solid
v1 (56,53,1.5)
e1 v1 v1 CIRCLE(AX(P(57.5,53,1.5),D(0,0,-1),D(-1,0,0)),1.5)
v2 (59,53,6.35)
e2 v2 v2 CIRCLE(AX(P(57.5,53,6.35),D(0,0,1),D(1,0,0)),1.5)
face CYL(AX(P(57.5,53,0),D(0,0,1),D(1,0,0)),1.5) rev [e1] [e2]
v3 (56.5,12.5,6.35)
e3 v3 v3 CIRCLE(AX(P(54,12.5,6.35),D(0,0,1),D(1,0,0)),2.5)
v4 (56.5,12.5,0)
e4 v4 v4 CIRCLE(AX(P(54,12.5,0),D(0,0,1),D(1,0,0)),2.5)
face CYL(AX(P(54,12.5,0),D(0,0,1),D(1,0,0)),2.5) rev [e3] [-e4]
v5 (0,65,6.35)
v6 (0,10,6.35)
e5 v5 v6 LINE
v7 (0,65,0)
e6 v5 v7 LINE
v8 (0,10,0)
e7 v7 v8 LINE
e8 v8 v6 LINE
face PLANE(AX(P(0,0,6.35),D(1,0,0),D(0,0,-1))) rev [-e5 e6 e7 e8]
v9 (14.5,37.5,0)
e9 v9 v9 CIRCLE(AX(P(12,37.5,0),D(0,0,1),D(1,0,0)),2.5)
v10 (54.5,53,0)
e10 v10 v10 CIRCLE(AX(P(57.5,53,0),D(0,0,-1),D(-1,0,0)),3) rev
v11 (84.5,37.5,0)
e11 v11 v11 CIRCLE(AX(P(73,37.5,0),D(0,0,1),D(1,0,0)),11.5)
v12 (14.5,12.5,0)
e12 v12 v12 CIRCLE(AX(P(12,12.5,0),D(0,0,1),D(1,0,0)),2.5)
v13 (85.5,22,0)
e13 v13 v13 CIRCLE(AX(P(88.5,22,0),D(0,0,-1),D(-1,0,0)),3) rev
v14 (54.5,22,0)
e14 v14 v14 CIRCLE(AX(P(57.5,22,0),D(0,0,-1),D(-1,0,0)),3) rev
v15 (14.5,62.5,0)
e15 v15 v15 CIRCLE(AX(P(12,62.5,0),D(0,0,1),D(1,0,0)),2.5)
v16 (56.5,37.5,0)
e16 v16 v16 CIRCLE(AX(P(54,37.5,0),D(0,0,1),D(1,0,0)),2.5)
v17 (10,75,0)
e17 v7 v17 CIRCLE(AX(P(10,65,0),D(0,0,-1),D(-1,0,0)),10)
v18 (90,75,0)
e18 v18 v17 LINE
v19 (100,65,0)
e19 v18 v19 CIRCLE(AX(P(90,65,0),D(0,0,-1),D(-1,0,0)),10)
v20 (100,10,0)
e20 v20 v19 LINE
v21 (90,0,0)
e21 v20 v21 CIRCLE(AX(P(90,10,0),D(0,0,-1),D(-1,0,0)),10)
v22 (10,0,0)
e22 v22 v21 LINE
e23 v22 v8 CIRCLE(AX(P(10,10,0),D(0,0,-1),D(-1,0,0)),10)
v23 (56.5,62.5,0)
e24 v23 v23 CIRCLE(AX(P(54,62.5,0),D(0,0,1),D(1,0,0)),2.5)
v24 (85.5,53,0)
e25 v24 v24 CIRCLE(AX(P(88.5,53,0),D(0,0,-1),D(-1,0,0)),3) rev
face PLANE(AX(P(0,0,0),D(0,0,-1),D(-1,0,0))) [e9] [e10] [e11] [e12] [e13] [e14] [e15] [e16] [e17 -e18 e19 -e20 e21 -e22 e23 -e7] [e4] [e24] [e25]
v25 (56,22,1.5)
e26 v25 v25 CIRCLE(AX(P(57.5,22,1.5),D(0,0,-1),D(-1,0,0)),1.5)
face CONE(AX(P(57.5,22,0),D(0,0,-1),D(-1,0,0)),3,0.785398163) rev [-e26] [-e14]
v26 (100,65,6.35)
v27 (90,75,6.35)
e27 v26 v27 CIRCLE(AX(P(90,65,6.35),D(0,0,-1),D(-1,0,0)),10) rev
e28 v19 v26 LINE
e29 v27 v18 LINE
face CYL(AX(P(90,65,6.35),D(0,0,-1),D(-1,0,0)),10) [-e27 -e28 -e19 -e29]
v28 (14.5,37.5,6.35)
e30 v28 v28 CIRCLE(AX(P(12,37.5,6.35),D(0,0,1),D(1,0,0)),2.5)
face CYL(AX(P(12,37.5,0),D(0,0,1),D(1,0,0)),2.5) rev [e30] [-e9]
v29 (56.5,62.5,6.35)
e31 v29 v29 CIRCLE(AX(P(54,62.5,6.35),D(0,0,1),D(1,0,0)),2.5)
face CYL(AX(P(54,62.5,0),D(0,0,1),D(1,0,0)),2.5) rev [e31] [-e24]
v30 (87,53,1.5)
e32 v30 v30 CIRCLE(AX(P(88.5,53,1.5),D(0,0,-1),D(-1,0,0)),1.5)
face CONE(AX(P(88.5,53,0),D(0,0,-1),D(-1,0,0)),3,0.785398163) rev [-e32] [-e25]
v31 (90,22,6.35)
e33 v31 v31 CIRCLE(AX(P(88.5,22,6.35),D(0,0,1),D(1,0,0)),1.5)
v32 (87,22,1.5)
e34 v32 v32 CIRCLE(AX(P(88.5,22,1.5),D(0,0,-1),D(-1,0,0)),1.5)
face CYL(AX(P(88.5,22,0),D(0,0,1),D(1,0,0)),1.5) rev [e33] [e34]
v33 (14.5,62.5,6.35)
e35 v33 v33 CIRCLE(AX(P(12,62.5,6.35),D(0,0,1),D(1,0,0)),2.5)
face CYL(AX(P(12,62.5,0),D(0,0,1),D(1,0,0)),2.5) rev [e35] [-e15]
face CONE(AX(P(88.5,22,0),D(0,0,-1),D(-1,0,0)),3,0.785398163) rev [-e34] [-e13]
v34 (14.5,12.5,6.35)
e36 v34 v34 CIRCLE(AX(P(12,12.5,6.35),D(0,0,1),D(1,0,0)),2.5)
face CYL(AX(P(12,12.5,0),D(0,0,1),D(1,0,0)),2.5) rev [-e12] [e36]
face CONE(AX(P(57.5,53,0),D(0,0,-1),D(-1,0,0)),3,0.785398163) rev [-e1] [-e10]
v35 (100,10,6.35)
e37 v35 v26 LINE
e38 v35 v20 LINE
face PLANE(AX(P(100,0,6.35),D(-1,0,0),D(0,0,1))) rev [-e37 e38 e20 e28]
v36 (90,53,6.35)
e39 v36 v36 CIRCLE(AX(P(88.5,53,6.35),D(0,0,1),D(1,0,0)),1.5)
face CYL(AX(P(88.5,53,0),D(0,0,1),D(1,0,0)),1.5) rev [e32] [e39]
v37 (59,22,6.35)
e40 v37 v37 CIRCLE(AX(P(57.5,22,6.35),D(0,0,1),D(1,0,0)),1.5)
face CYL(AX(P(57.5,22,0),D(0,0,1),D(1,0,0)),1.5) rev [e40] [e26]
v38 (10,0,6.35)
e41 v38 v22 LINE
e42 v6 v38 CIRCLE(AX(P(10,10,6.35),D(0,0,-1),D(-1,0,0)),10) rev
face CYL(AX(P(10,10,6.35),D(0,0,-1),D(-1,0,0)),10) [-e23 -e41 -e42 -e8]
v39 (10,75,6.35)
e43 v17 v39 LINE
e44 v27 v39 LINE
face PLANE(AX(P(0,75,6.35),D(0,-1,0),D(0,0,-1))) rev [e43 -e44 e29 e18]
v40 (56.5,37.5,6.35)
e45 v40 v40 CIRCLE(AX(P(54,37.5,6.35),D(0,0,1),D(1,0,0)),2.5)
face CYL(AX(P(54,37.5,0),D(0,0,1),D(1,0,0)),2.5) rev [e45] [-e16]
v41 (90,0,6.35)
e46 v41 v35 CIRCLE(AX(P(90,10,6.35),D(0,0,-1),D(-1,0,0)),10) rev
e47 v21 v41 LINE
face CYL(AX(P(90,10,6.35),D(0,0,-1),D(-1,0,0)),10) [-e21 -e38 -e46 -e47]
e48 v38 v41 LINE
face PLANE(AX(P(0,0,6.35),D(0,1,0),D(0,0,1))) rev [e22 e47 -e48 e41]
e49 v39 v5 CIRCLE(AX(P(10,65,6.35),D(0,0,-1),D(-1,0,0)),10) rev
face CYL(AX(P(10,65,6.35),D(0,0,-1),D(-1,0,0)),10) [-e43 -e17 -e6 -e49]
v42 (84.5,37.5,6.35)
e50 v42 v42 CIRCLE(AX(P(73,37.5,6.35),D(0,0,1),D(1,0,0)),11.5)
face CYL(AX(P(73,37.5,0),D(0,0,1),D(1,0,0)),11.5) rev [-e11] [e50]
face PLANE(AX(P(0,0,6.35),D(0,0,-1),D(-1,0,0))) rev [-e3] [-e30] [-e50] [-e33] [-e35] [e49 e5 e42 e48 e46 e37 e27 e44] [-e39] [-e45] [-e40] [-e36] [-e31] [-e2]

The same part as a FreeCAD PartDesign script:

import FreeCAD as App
import Part
import Sketcher
from FreeCAD import Vector
Q = App.Units.Quantity


def edges_at(feature, points):
    """Names of the edges that pass closest to the given points."""
    edges = feature.Shape.Edges
    near = lambda p: min(range(len(edges)), key=lambda i: edges[i].distToShape(Part.Vertex(*p))[0])
    return sorted({f"Edge{near(p) + 1}" for p in points})


def add_polygon(sketch, points):
    """Adds a closed chain of lines whose ends are joined by coincident constraints."""
    first, n = sketch.GeometryCount, len(points)
    for a, b in zip(points, points[1:] + points[:1]):
        sketch.addGeometry(Part.LineSegment(App.Vector(*a, 0), App.Vector(*b, 0)), False)
    for i in range(n):
        sketch.addConstraint(Sketcher.Constraint("Coincident", first + i, 2, first + (i + 1) % n, 1))

doc = App.newDocument("Part")
params = doc.addObject("Spreadsheet::Sheet", "Params")
for row, (alias, value) in enumerate([
    ("sketch1_width", "100 mm"),
    ("sketch1_height", "75 mm"),
    ("pad1_length", "6.35 mm"),
    ("sketch2_diameter", "5 mm"),
    ("sketch3_diameter", "3 mm"),
    ("sketch3_diameter2", "23 mm"),
    ("chamfer_size", "1.5 mm"),
    ("fillet_radius", "10 mm"),
], start=1):
    params.set(f"A{row}", alias)
    params.set(f"B{row}", "=" + value)
    params.setAlias(f"B{row}", alias)

body = doc.addObject("PartDesign::Body", "Body")

# Sketch on XY plane
sketch1 = body.newObject("Sketcher::SketchObject", "Sketch")
sketch1.AttachmentSupport = (doc.getObject("XY_Plane"), [""])
sketch1.MapMode = "FlatFace"
add_polygon(sketch1, [(0, 75), (0, 0), (100, 0), (100, 75)])  # lines 0-3
sketch1.addConstraint([
    Sketcher.Constraint("Vertical", 0),
    Sketcher.Constraint("Horizontal", 1),
    Sketcher.Constraint("Vertical", 2),
    Sketcher.Constraint("Horizontal", 3),
    Sketcher.Constraint("Coincident", 0, 2, -1, 1),
    Sketcher.Constraint("DistanceX", 1, 1, 1, 2, Q("100 mm")),
    Sketcher.Constraint("DistanceY", 0, 2, 0, 1, Q("75 mm")),
])
sketch1.setExpression("Constraints[9]", "Params.sketch1_width")
sketch1.setExpression("Constraints[10]", "Params.sketch1_height")
pad1 = body.newObject("PartDesign::Pad", "Pad")
pad1.Profile = sketch1
pad1.setExpression("Length", "Params.pad1_length")

# Sketch on XY plane
sketch2 = body.newObject("Sketcher::SketchObject", "Sketch001")
sketch2.AttachmentSupport = (doc.getObject("XY_Plane"), [""])
sketch2.MapMode = "FlatFace"
sketch2.AttachmentOffset = App.Placement(Vector(0, 0, 6.35), App.Rotation())
sketch2.addGeometry([
    Part.Circle(Vector(12, 62.5, 0), Vector(0, 0, 1), 2.5),  # 0
    Part.Circle(Vector(12, 12.5, 0), Vector(0, 0, 1), 2.5),  # 1
    Part.Circle(Vector(54, 37.5, 0), Vector(0, 0, 1), 2.5),  # 2
    Part.Circle(Vector(54, 62.5, 0), Vector(0, 0, 1), 2.5),  # 3
    Part.Circle(Vector(12, 37.5, 0), Vector(0, 0, 1), 2.5),  # 4
    Part.Circle(Vector(54, 12.5, 0), Vector(0, 0, 1), 2.5),  # 5
], False)
sketch2.addConstraint([
    Sketcher.Constraint("Equal", 0, 1),
    Sketcher.Constraint("Equal", 1, 2),
    Sketcher.Constraint("Equal", 2, 3),
    Sketcher.Constraint("Equal", 3, 4),
    Sketcher.Constraint("Equal", 4, 5),
    Sketcher.Constraint("Horizontal", 0, 3, 3, 3),
    Sketcher.Constraint("Horizontal", 2, 3, 4, 3),
    Sketcher.Constraint("Horizontal", 1, 3, 5, 3),
    Sketcher.Constraint("Vertical", 0, 3, 1, 3),
    Sketcher.Constraint("Vertical", 2, 3, 3, 3),
    Sketcher.Constraint("Vertical", 1, 3, 4, 3),
    Sketcher.Constraint("Vertical", 3, 3, 5, 3),
    Sketcher.Constraint("Diameter", 0, Q("5 mm")),
    Sketcher.Constraint("DistanceX", -1, 1, 0, 3, Q("12 mm")),
    Sketcher.Constraint("DistanceX", -1, 1, 2, 3, Q("54 mm")),
    Sketcher.Constraint("DistanceY", 1, 3, 0, 3, Q("50 mm")),
    Sketcher.Constraint("DistanceY", 2, 3, 0, 3, Q("25 mm")),
    Sketcher.Constraint("DistanceY", -1, 1, 0, 3, Q("62.5 mm")),
])
sketch2.setExpression("Constraints[12]", "Params.sketch2_diameter")
pocket1 = body.newObject("PartDesign::Pocket", "Pocket")
pocket1.Profile = sketch2
pocket1.Type = "ThroughAll"

# Sketch on XY plane
sketch3 = body.newObject("Sketcher::SketchObject", "Sketch002")
sketch3.AttachmentSupport = (doc.getObject("XY_Plane"), [""])
sketch3.MapMode = "FlatFace"
sketch3.AttachmentOffset = App.Placement(Vector(0, 0, 6.35), App.Rotation())
sketch3.addGeometry([
    Part.Circle(Vector(57.5, 53, 0), Vector(0, 0, 1), 1.5),  # 0
    Part.Circle(Vector(88.5, 53, 0), Vector(0, 0, 1), 1.5),  # 1
    Part.Circle(Vector(88.5, 22, 0), Vector(0, 0, 1), 1.5),  # 2
    Part.Circle(Vector(57.5, 22, 0), Vector(0, 0, 1), 1.5),  # 3
    Part.Circle(Vector(73, 37.5, 0), Vector(0, 0, 1), 11.5),  # 4
], False)
sketch3.addConstraint([
    Sketcher.Constraint("Equal", 0, 1),
    Sketcher.Constraint("Equal", 1, 2),
    Sketcher.Constraint("Equal", 2, 3),
    Sketcher.Constraint("Horizontal", 0, 3, 1, 3),
    Sketcher.Constraint("Horizontal", 2, 3, 3, 3),
    Sketcher.Constraint("Vertical", 1, 3, 2, 3),
    Sketcher.Constraint("Vertical", 0, 3, 3, 3),
    Sketcher.Constraint("Diameter", 0, Q("3 mm")),
    Sketcher.Constraint("Diameter", 4, Q("23 mm")),
    Sketcher.Constraint("DistanceY", -1, 1, 0, 3, Q("53 mm")),
    Sketcher.Constraint("DistanceY", -1, 1, 2, 3, Q("22 mm")),
    Sketcher.Constraint("DistanceX", -1, 1, 4, 3, Q("73 mm")),
    Sketcher.Constraint("DistanceX", 0, 3, 1, 3, Q("31 mm")),
    Sketcher.Constraint("DistanceX", -1, 1, 0, 3, Q("57.5 mm")),
    Sketcher.Constraint("DistanceY", -1, 1, 4, 3, Q("37.5 mm")),
])
sketch3.setExpression("Constraints[7]", "Params.sketch3_diameter")
sketch3.setExpression("Constraints[8]", "Params.sketch3_diameter2")
pocket2 = body.newObject("PartDesign::Pocket", "Pocket001")
pocket2.Profile = sketch3
pocket2.Type = "ThroughAll"
doc.recompute()

chamfer = body.newObject("PartDesign::Chamfer", "Chamfer")
chamfer.Base = (pocket2, edges_at(pocket2, [
    (56, 53, 0),
    (87, 22, 0),
    (56, 22, 0),
    (87, 53, 0),
]))
chamfer.setExpression("Size", "Params.chamfer_size")
doc.recompute()

fillet = body.newObject("PartDesign::Fillet", "Fillet")
fillet.Base = (chamfer, edges_at(chamfer, [
    (0, 75, 3.175),
    (100, 75, 3.175),
    (100, 0, 3.175),
    (0, 0, 3.175),
]))
fillet.setExpression("Radius", "Params.fillet_radius")

doc.recompute()
